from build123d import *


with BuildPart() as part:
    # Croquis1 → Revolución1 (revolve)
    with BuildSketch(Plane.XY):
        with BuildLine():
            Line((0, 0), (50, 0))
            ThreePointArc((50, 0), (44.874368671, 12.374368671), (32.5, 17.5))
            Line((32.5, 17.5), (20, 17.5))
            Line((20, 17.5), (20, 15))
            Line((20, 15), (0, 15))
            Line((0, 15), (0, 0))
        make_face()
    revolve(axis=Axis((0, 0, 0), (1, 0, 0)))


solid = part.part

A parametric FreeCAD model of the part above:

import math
import FreeCAD as App
import Part
import Sketcher

V = App.Vector

doc = App.newDocument("Part")
params = doc.addObject("Spreadsheet::Sheet", "Params")
for row, (alias, value) in enumerate([
    ("sketch1_radius", "17.5 mm"),
    ("sketch1_width", "50 mm"),
    ("sketch1_width2", "20 mm"),
    ("sketch1_height", "15 mm"),
    ("revolution_angle", "360 deg"),
], start=1):
    params.set(f"A{row}", alias)
    params.set(f"B{row}", "=" + value)
    params.setAlias(f"B{row}", alias)

body = doc.addObject("PartDesign::Body", "Body")

# Sketch on XY plane
sketch1 = body.newObject("Sketcher::SketchObject", "Sketch")
sketch1.AttachmentSupport = (doc.getObject("XY_Plane"), [""])
sketch1.MapMode = "FlatFace"
sketch1.addGeometry(Part.LineSegment(V(0, 0, 0), V(50, 0, 0)), False)
sketch1.addGeometry(Part.ArcOfCircle(Part.Circle(V(32.5, 0, 0), V(0, 0, 1), 17.5), math.radians(0), math.radians(90)), False)
sketch1.addGeometry(Part.LineSegment(V(32.5, 17.5, 0), V(20, 17.5, 0)), False)
sketch1.addGeometry(Part.LineSegment(V(20, 17.5, 0), V(20, 15, 0)), False)
sketch1.addGeometry(Part.LineSegment(V(20, 15, 0), V(0, 15, 0)), False)
sketch1.addGeometry(Part.LineSegment(V(0, 15, 0), V(0, 0, 0)), False)
sketch1.addConstraint(Sketcher.Constraint("Coincident", 0, 2, 1, 1))
sketch1.addConstraint(Sketcher.Constraint("Tangent", 1, 2, 2, 1))
sketch1.addConstraint(Sketcher.Constraint("Coincident", 2, 2, 3, 1))
sketch1.addConstraint(Sketcher.Constraint("Coincident", 3, 2, 4, 1))
sketch1.addConstraint(Sketcher.Constraint("Coincident", 4, 2, 5, 1))
sketch1.addConstraint(Sketcher.Constraint("Coincident", 5, 2, 0, 1))
sketch1.addConstraint(Sketcher.Constraint("Horizontal", 0))
sketch1.addConstraint(Sketcher.Constraint("Horizontal", 2))
sketch1.addConstraint(Sketcher.Constraint("Vertical", 3))
sketch1.addConstraint(Sketcher.Constraint("Horizontal", 4))
sketch1.addConstraint(Sketcher.Constraint("Vertical", 5))
sketch1.addConstraint(Sketcher.Constraint("Coincident", 5, 2, -1, 1))
sketch1.addConstraint(Sketcher.Constraint("PointOnObject", 1, 3, -1))
sketch1.addConstraint(Sketcher.Constraint("Radius", 1, 17.5))
sketch1.addConstraint(Sketcher.Constraint("DistanceX", 0, 1, 0, 2, 50.0))
sketch1.addConstraint(Sketcher.Constraint("DistanceX", 4, 2, 4, 1, 20.0))
sketch1.addConstraint(Sketcher.Constraint("DistanceY", 5, 2, 5, 1, 15.0))
sketch1.setExpression("Constraints[13]", "Params.sketch1_radius")
sketch1.setExpression("Constraints[14]", "Params.sketch1_width")
sketch1.setExpression("Constraints[15]", "Params.sketch1_width2")
sketch1.setExpression("Constraints[16]", "Params.sketch1_height")
revolution = body.newObject("PartDesign::Revolution", "Revolution")
revolution.Profile = sketch1
revolution.ReferenceAxis = (sketch1, ["H_Axis"])
revolution.setExpression("Angle", "Params.revolution_angle")

doc.recompute()
